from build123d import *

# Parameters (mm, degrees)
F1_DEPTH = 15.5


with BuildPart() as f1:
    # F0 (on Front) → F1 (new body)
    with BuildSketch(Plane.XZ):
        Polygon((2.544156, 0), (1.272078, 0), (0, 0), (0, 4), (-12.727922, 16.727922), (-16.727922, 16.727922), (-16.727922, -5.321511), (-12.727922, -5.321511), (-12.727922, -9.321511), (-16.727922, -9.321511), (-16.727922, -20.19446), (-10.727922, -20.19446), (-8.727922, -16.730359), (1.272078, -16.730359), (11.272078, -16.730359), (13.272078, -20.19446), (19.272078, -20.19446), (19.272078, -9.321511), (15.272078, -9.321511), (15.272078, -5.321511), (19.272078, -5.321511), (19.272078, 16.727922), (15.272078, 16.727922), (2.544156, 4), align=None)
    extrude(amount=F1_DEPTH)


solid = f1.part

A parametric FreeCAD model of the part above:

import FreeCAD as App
import Part
import Sketcher
from FreeCAD import Vector
Q = App.Units.Quantity

doc = App.newDocument("Part")
body = doc.addObject("PartDesign::Body", "Body")

sketch1 = body.newObject("Sketcher::SketchObject", "Sketch")
sketch1.AttachmentSupport = (doc.getObject("XZ_Plane"), [""])
sketch1.MapMode = "FlatFace"
sketch1.addGeometry(Part.LineSegment(Vector(2.5, 0, 0), Vector(0, 0, 0)), False)
sketch1.addGeometry(Part.LineSegment(Vector(0, 0, 0), Vector(0, 4, 0)), False)
sketch1.addGeometry(Part.LineSegment(Vector(0, 4, 0), Vector(-12.7, 16.7, 0)), False)
sketch1.addGeometry(Part.LineSegment(Vector(-12.7, 16.7, 0), Vector(-16.7, 16.7, 0)), False)
sketch1.addGeometry(Part.LineSegment(Vector(-16.7, 16.7, 0), Vector(-16.7, -5.3, 0)), False)
sketch1.addGeometry(Part.LineSegment(Vector(-16.7, -5.3, 0), Vector(-12.7, -5.3, 0)), False)
sketch1.addGeometry(Part.LineSegment(Vector(-12.7, -5.3, 0), Vector(-12.7, -9.3, 0)), False)
sketch1.addGeometry(Part.LineSegment(Vector(-12.7, -9.3, 0), Vector(-16.7, -9.3, 0)), False)
sketch1.addGeometry(Part.LineSegment(Vector(-16.7, -9.3, 0), Vector(-16.7, -20.2, 0)), False)
sketch1.addGeometry(Part.LineSegment(Vector(-16.7, -20.2, 0), Vector(-10.7, -20.2, 0)), False)
sketch1.addGeometry(Part.LineSegment(Vector(-10.7, -20.2, 0), Vector(-8.7, -16.7, 0)), False)
sketch1.addGeometry(Part.LineSegment(Vector(-8.7, -16.7, 0), Vector(11.3, -16.7, 0)), False)
sketch1.addGeometry(Part.LineSegment(Vector(11.3, -16.7, 0), Vector(13.3, -20.2, 0)), False)
sketch1.addGeometry(Part.LineSegment(Vector(13.3, -20.2, 0), Vector(19.3, -20.2, 0)), False)
sketch1.addGeometry(Part.LineSegment(Vector(19.3, -20.2, 0), Vector(19.3, -9.3, 0)), False)
sketch1.addGeometry(Part.LineSegment(Vector(19.3, -9.3, 0), Vector(15.3, -9.3, 0)), False)
sketch1.addGeometry(Part.LineSegment(Vector(15.3, -9.3, 0), Vector(15.3, -5.3, 0)), False)
sketch1.addGeometry(Part.LineSegment(Vector(15.3, -5.3, 0), Vector(19.3, -5.3, 0)), False)
sketch1.addGeometry(Part.LineSegment(Vector(19.3, -5.3, 0), Vector(19.3, 16.7, 0)), False)
sketch1.addGeometry(Part.LineSegment(Vector(19.3, 16.7, 0), Vector(15.3, 16.7, 0)), False)
sketch1.addGeometry(Part.LineSegment(Vector(15.3, 16.7, 0), Vector(2.5, 4, 0)), False)
sketch1.addGeometry(Part.LineSegment(Vector(2.5, 4, 0), Vector(2.5, 0, 0)), False)
sketch1.addConstraint(Sketcher.Constraint("Coincident", 0, 2, 1, 1))
sketch1.addConstraint(Sketcher.Constraint("Coincident", 1, 2, 2, 1))
sketch1.addConstraint(Sketcher.Constraint("Coincident", 2, 2, 3, 1))
sketch1.addConstraint(Sketcher.Constraint("Coincident", 3, 2, 4, 1))
sketch1.addConstraint(Sketcher.Constraint("Coincident", 4, 2, 5, 1))
sketch1.addConstraint(Sketcher.Constraint("Coincident", 5, 2, 6, 1))
sketch1.addConstraint(Sketcher.Constraint("Coincident", 6, 2, 7, 1))
sketch1.addConstraint(Sketcher.Constraint("Coincident", 7, 2, 8, 1))
sketch1.addConstraint(Sketcher.Constraint("Coincident", 8, 2, 9, 1))
sketch1.addConstraint(Sketcher.Constraint("Coincident", 9, 2, 10, 1))
sketch1.addConstraint(Sketcher.Constraint("Coincident", 10, 2, 11, 1))
sketch1.addConstraint(Sketcher.Constraint("Coincident", 11, 2, 12, 1))
sketch1.addConstraint(Sketcher.Constraint("Coincident", 12, 2, 13, 1))
sketch1.addConstraint(Sketcher.Constraint("Coincident", 13, 2, 14, 1))
sketch1.addConstraint(Sketcher.Constraint("Coincident", 14, 2, 15, 1))
sketch1.addConstraint(Sketcher.Constraint("Coincident", 15, 2, 16, 1))
sketch1.addConstraint(Sketcher.Constraint("Coincident", 16, 2, 17, 1))
sketch1.addConstraint(Sketcher.Constraint("Coincident", 17, 2, 18, 1))
sketch1.addConstraint(Sketcher.Constraint("Coincident", 18, 2, 19, 1))
sketch1.addConstraint(Sketcher.Constraint("Coincident", 19, 2, 20, 1))
sketch1.addConstraint(Sketcher.Constraint("Coincident", 20, 2, 21, 1))
sketch1.addConstraint(Sketcher.Constraint("Coincident", 21, 2, 0, 1))
sketch1.addConstraint(Sketcher.Constraint("Horizontal", 0))
sketch1.addConstraint(Sketcher.Constraint("Vertical", 1))
sketch1.addConstraint(Sketcher.Constraint("Horizontal", 3))
sketch1.addConstraint(Sketcher.Constraint("Vertical", 4))
sketch1.addConstraint(Sketcher.Constraint("Horizontal", 5))
sketch1.addConstraint(Sketcher.Constraint("Vertical", 6))
sketch1.addConstraint(Sketcher.Constraint("Horizontal", 7))
sketch1.addConstraint(Sketcher.Constraint("Vertical", 8))
sketch1.addConstraint(Sketcher.Constraint("Horizontal", 9))
sketch1.addConstraint(Sketcher.Constraint("Horizontal", 11))
sketch1.addConstraint(Sketcher.Constraint("Horizontal", 13))
sketch1.addConstraint(Sketcher.Constraint("Vertical", 14))
sketch1.addConstraint(Sketcher.Constraint("Horizontal", 15))
sketch1.addConstraint(Sketcher.Constraint("Vertical", 16))
sketch1.addConstraint(Sketcher.Constraint("Horizontal", 17))
sketch1.addConstraint(Sketcher.Constraint("Vertical", 18))
sketch1.addConstraint(Sketcher.Constraint("Horizontal", 19))
sketch1.addConstraint(Sketcher.Constraint("Vertical", 21))
sketch1.addConstraint(Sketcher.Constraint("Coincident", 0, 2, -1, 1))
sketch1.addConstraint(Sketcher.Constraint("Perpendicular", 2, 20))
sketch1.addConstraint(Sketcher.Constraint("Horizontal", 9, 2, 12, 2))
sketch1.addConstraint(Sketcher.Constraint("Horizontal", 7, 2, 14, 2))
sketch1.addConstraint(Sketcher.Constraint("Horizontal", 5, 2, 16, 2))
sketch1.addConstraint(Sketcher.Constraint("Horizontal", 3, 2, 18, 2))
sketch1.addConstraint(Sketcher.Constraint("Horizontal", 1, 2, 20, 2))
sketch1.addConstraint(Sketcher.Constraint("Vertical", 2, 2, 5, 2))
sketch1.addConstraint(Sketcher.Constraint("Vertical", 4, 2, 7, 2))
sketch1.addConstraint(Sketcher.Constraint("Vertical", 14, 2, 17, 2))
sketch1.addConstraint(Sketcher.Constraint("Vertical", 16, 2, 19, 2))
sketch1.addConstraint(Sketcher.Constraint("Equal", 9, 13))
sketch1.addConstraint(Sketcher.Constraint("Equal", 7, 15))
sketch1.addConstraint(Sketcher.Constraint("Equal", 19, 1))
sketch1.addConstraint(Sketcher.Constraint("Equal", 1, 6))
sketch1.addConstraint(Sketcher.Constraint("Equal", 10, 12))
sketch1.addConstraint(Sketcher.Constraint("Equal", 2, 20))
sketch1.addConstraint(Sketcher.Constraint("DistanceX", 3, 2, 3, 1, Q("4 mm")))
sketch1.addConstraint(Sketcher.Constraint("DistanceX", 9, 1, 9, 2, Q("6 mm")))
sketch1.addConstraint(Sketcher.Constraint("DistanceX", 11, 1, 11, 2, Q("20 mm")))
sketch1.addConstraint(Sketcher.Constraint("Angle", 10, Q("59.999996 deg")))
sketch1.addConstraint(Sketcher.Constraint("Distance", 2, Q("18 mm")))
sketch1.addConstraint(Sketcher.Constraint("Distance", 10, Q("3.999999 mm")))
sketch1.addConstraint(Sketcher.Constraint("DistanceY", 8, 2, 8, 1, Q("10.872949 mm")))
sketch1.addConstraint(Sketcher.Constraint("DistanceY", 4, 2, 4, 1, Q("22.049433 mm")))
pad1 = body.newObject("PartDesign::Pad", "Pad")
pad1.Profile = sketch1
pad1.Length = 15.5

doc.recompute()
